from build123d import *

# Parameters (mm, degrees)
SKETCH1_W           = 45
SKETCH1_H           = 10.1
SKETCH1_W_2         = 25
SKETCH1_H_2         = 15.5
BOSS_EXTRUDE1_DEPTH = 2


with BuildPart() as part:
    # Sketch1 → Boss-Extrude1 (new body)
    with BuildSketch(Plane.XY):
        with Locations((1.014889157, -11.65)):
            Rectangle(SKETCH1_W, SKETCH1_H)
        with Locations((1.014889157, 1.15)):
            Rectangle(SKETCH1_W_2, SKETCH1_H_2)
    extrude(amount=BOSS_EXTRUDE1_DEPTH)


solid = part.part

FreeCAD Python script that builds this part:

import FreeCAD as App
import Part
import Sketcher

V = App.Vector
Q = App.Units.Quantity


def add_polygon(sketch, points):
    """Adds a closed chain of lines whose ends are joined by coincident constraints."""
    first, n = sketch.GeometryCount, len(points)
    for a, b in zip(points, points[1:] + points[:1]):
        sketch.addGeometry(Part.LineSegment(App.Vector(*a, 0), App.Vector(*b, 0)), False)
    for i in range(n):
        sketch.addConstraint(Sketcher.Constraint("Coincident", first + i, 2, first + (i + 1) % n, 1))

doc = App.newDocument("Part")
body = doc.addObject("PartDesign::Body", "Body")

# Sketch on XY plane
sketch1 = body.newObject("Sketcher::SketchObject", "Sketch")
sketch1.AttachmentSupport = (doc.getObject("XY_Plane"), [""])
sketch1.MapMode = "FlatFace"
add_polygon(sketch1, [(-21, -7), (-21, -17), (24, -17), (24, -7), (14, -7), (14, 9), (-11, 9), (-11, -7)])  # lines 0-7
sketch1.addConstraint(Sketcher.Constraint("Vertical", 0))
sketch1.addConstraint(Sketcher.Constraint("Horizontal", 1))
sketch1.addConstraint(Sketcher.Constraint("Vertical", 2))
sketch1.addConstraint(Sketcher.Constraint("Horizontal", 3))
sketch1.addConstraint(Sketcher.Constraint("Vertical", 4))
sketch1.addConstraint(Sketcher.Constraint("Horizontal", 5))
sketch1.addConstraint(Sketcher.Constraint("Vertical", 6))
sketch1.addConstraint(Sketcher.Constraint("Horizontal", 7))
sketch1.addConstraint(Sketcher.Constraint("Horizontal", 3, 2, 6, 2))
sketch1.addConstraint(Sketcher.Constraint("Equal", 3, 7))
sketch1.addConstraint(Sketcher.Constraint("DistanceX", 1, 1, 1, 2, Q("45 mm")))
sketch1.addConstraint(Sketcher.Constraint("DistanceX", 3, 2, 3, 1, Q("10 mm")))
sketch1.addConstraint(Sketcher.Constraint("DistanceY", 0, 2, 0, 1, Q("10.1 mm")))
sketch1.addConstraint(Sketcher.Constraint("DistanceY", 4, 1, 4, 2, Q("15.5 mm")))
sketch1.addConstraint(Sketcher.Constraint("DistanceY", 0, 2, -1, 1, Q("16.7 mm")))
sketch1.addConstraint(Sketcher.Constraint("DistanceX", 0, 2, -1, 1, Q("21.485111 mm")))
pad1 = body.newObject("PartDesign::Pad", "Pad")
pad1.Profile = sketch1
pad1.Length = 2

doc.recompute()
